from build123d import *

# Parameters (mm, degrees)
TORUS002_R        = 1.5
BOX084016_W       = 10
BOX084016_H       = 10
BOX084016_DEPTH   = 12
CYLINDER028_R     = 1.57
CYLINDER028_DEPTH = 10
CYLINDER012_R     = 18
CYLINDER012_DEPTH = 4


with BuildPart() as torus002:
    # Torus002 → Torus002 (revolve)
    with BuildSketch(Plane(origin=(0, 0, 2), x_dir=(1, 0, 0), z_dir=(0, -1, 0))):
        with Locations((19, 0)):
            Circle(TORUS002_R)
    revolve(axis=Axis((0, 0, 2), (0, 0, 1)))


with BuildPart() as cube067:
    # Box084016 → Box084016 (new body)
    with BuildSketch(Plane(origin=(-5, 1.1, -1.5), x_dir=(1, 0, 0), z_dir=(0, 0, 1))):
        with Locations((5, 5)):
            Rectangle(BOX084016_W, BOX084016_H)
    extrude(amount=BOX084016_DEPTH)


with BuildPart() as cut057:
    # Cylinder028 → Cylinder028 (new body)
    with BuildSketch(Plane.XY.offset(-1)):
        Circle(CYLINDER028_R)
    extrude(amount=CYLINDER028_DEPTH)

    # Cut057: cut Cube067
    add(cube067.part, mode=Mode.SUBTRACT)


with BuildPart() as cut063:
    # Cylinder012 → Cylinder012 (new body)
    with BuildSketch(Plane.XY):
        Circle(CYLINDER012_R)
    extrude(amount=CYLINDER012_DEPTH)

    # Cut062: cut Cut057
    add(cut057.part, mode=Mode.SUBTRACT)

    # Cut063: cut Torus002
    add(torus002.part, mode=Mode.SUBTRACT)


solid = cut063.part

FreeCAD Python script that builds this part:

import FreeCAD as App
import Part
import Sketcher
from FreeCAD import Vector

doc = App.newDocument("Part")
params = doc.addObject("Spreadsheet::Sheet", "Params")
for row, (alias, value) in enumerate([
    ("sketch1_diameter", "3 mm"),
    ("revolution_angle", "360 deg"),
    ("sketch2_width", "10 mm"),
    ("pad1_length", "12 mm"),
    ("sketch3_diameter", "3.14 mm"),
    ("pad2_length", "10 mm"),
    ("sketch4_diameter", "36 mm"),
    ("pad3_length", "4 mm"),
], start=1):
    params.set(f"A{row}", alias)
    params.set(f"B{row}", "=" + value)
    params.setAlias(f"B{row}", alias)

body = doc.addObject("PartDesign::Body", "Body")

# Sketch on XZ plane
sketch1 = body.newObject("Sketcher::SketchObject", "Sketch")
sketch1.AttachmentSupport = (doc.getObject("XZ_Plane"), [""])
sketch1.MapMode = "FlatFace"
sketch1.addGeometry(Part.Circle(Vector(19, 2, 0), Vector(0, 0, 1), 1.5), False)
sketch1.addConstraint([
    Sketcher.Constraint("Diameter", 0, 3.0),
    Sketcher.Constraint("DistanceX", -1, 1, 0, 3, 19.0),
    Sketcher.Constraint("DistanceY", -1, 1, 0, 3, 2.0),
])
sketch1.setExpression("Constraints[0]", "Params.sketch1_diameter")
revolution = body.newObject("PartDesign::Revolution", "Revolution")
revolution.Profile = sketch1
revolution.ReferenceAxis = (sketch1, ["V_Axis"])
revolution.setExpression("Angle", "Params.revolution_angle")
body2 = doc.addObject("PartDesign::Body", "Body001")

# Sketch on XY plane
sketch2 = body2.newObject("Sketcher::SketchObject", "Sketch001")
sketch2.AttachmentSupport = (doc.getObject("XY_Plane001"), [""])
sketch2.MapMode = "FlatFace"
sketch2.AttachmentOffset = App.Placement(Vector(0, 0, -1.5), App.Rotation())
sketch2.addGeometry([
    Part.LineSegment(Vector(-5, 11.1, 0), Vector(-5, 1.1, 0)),
    Part.LineSegment(Vector(-5, 1.1, 0), Vector(5, 1.1, 0)),
    Part.LineSegment(Vector(5, 1.1, 0), Vector(5, 11.1, 0)),
    Part.LineSegment(Vector(5, 11.1, 0), Vector(-5, 11.1, 0)),
], False)
sketch2.addConstraint([
    Sketcher.Constraint("Coincident", 0, 2, 1, 1),
    Sketcher.Constraint("Coincident", 1, 2, 2, 1),
    Sketcher.Constraint("Coincident", 2, 2, 3, 1),
    Sketcher.Constraint("Coincident", 3, 2, 0, 1),
    Sketcher.Constraint("Vertical", 0),
    Sketcher.Constraint("Horizontal", 1),
    Sketcher.Constraint("Vertical", 2),
    Sketcher.Constraint("Horizontal", 3),
    Sketcher.Constraint("Equal", 3, 0),
    Sketcher.Constraint("DistanceX", 1, 1, 1, 2, 10.0),
    Sketcher.Constraint("DistanceX", 0, 2, -1, 1, 5.0),
    Sketcher.Constraint("DistanceY", -1, 1, 0, 2, 1.1),
])
sketch2.setExpression("Constraints[9]", "Params.sketch2_width")
pad1 = body2.newObject("PartDesign::Pad", "Pad")
pad1.Profile = sketch2
pad1.setExpression("Length", "Params.pad1_length")
body3 = doc.addObject("PartDesign::Body", "Body002")

# Sketch on XY plane
sketch3 = body3.newObject("Sketcher::SketchObject", "Sketch002")
sketch3.AttachmentSupport = (doc.getObject("XY_Plane002"), [""])
sketch3.MapMode = "FlatFace"
sketch3.AttachmentOffset = App.Placement(Vector(0, 0, -1), App.Rotation())
sketch3.addGeometry(Part.Circle(Vector(0, 0, 0), Vector(0, 0, 1), 1.57), False)
sketch3.addConstraint([
    Sketcher.Constraint("Coincident", 0, 3, -1, 1),
    Sketcher.Constraint("Diameter", 0, 3.14),
])
sketch3.setExpression("Constraints[1]", "Params.sketch3_diameter")
pad2 = body3.newObject("PartDesign::Pad", "Pad001")
pad2.Profile = sketch3
pad2.setExpression("Length", "Params.pad2_length")
doc.recompute()

boolean = body3.newObject("PartDesign::Boolean", "Boolean")
boolean.Type = "Cut"
boolean.addObjects([body2])
body4 = doc.addObject("PartDesign::Body", "Body003")

# Sketch on XY plane
sketch4 = body4.newObject("Sketcher::SketchObject", "Sketch003")
sketch4.AttachmentSupport = (doc.getObject("XY_Plane003"), [""])
sketch4.MapMode = "FlatFace"
sketch4.addGeometry(Part.Circle(Vector(0, 0, 0), Vector(0, 0, 1), 18), False)
sketch4.addConstraint([
    Sketcher.Constraint("Coincident", 0, 3, -1, 1),
    Sketcher.Constraint("Diameter", 0, 36.0),
])
sketch4.setExpression("Constraints[1]", "Params.sketch4_diameter")
pad3 = body4.newObject("PartDesign::Pad", "Pad002")
pad3.Profile = sketch4
pad3.setExpression("Length", "Params.pad3_length")
doc.recompute()

boolean2 = body4.newObject("PartDesign::Boolean", "Boolean001")
boolean2.Type = "Cut"
boolean2.addObjects([body3])
doc.recompute()

boolean3 = body4.newObject("PartDesign::Boolean", "Boolean002")
boolean3.Type = "Cut"
boolean3.addObjects([body])

doc.recompute()
